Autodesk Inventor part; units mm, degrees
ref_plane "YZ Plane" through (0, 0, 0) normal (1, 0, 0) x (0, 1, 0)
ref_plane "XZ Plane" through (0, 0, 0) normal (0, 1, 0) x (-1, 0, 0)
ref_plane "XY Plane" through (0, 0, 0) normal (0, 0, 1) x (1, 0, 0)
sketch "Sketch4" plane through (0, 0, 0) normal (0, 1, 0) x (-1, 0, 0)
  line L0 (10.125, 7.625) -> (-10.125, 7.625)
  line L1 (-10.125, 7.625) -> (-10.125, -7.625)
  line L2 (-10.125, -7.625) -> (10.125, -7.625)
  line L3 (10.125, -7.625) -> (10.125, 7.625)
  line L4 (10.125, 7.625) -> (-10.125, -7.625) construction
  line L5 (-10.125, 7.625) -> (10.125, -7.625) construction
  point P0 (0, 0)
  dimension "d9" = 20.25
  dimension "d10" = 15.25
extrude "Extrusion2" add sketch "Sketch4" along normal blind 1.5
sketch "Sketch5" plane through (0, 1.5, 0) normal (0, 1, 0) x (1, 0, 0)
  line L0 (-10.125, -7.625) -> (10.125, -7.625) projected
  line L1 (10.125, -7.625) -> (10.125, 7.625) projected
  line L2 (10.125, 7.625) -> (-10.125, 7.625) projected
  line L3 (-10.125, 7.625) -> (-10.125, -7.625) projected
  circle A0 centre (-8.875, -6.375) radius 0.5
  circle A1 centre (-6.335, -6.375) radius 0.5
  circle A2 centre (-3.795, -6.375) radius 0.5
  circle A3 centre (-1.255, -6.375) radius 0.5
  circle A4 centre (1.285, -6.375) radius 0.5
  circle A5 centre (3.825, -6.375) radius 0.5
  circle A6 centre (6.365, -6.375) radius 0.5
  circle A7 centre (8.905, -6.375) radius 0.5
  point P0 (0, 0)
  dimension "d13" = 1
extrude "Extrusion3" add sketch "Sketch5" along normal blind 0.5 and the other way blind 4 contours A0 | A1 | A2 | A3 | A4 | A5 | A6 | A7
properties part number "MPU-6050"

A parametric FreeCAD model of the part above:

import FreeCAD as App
import Part
import Sketcher
Q = App.Units.Quantity


def add_polygon(sketch, points):
    """Adds a closed chain of lines whose ends are joined by coincident constraints."""
    first, n = sketch.GeometryCount, len(points)
    for a, b in zip(points, points[1:] + points[:1]):
        sketch.addGeometry(Part.LineSegment(App.Vector(*a, 0), App.Vector(*b, 0)), False)
    for i in range(n):
        sketch.addConstraint(Sketcher.Constraint("Coincident", first + i, 2, first + (i + 1) % n, 1))

doc = App.newDocument("Part")
body = doc.addObject("PartDesign::Body", "Body")

sketch1 = doc.addObject("Sketcher::SketchObject", "Sketch")
body.addObject(sketch1)
sketch1.AttachmentSupport = (doc.XZ_Plane, [""])
sketch1.MapMode = "FlatFace"
add_polygon(sketch1, [(-10.125, -7.625), (-10.125, 7.625), (10.125, 7.625), (10.125, -7.625)])
sketch1.addConstraint(Sketcher.Constraint("Vertical", 0))
sketch1.addConstraint(Sketcher.Constraint("Horizontal", 1))
sketch1.addConstraint(Sketcher.Constraint("Vertical", 2))
sketch1.addConstraint(Sketcher.Constraint("Horizontal", 3))
sketch1.addConstraint(Sketcher.Constraint("Symmetric", 0, 2, 2, 2, -1, 1))
sketch1.addConstraint(Sketcher.Constraint("DistanceX", 1, 1, 1, 2, Q("20.25 mm")))
sketch1.addConstraint(Sketcher.Constraint("DistanceY", 0, 1, 0, 2, Q("15.25 mm")))
pad1 = doc.addObject("PartDesign::Pad", "Pad")
body.addObject(pad1)
pad1.Profile = sketch1
pad1.Length = 1.5
pad1.Reversed = True

sketch2 = doc.addObject("Sketcher::SketchObject", "Sketch001")
body.addObject(sketch2)
sketch2.AttachmentSupport = (doc.XZ_Plane, [""])
sketch2.MapMode = "FlatFace"
sketch2.AttachmentOffset = App.Placement(App.Vector(0, 0, -1.5), App.Rotation())
sketch2.addGeometry(Part.Circle(App.Vector(-8.875, 6.375, 0), App.Vector(0, 0, 1), 0.5), False)
sketch2.addGeometry(Part.Circle(App.Vector(-6.335, 6.375, 0), App.Vector(0, 0, 1), 0.5), False)
sketch2.addGeometry(Part.Circle(App.Vector(-3.795, 6.375, 0), App.Vector(0, 0, 1), 0.5), False)
sketch2.addGeometry(Part.Circle(App.Vector(-1.255, 6.375, 0), App.Vector(0, 0, 1), 0.5), False)
sketch2.addGeometry(Part.Circle(App.Vector(1.285, 6.375, 0), App.Vector(0, 0, 1), 0.5), False)
sketch2.addGeometry(Part.Circle(App.Vector(3.825, 6.375, 0), App.Vector(0, 0, 1), 0.5), False)
sketch2.addGeometry(Part.Circle(App.Vector(6.365, 6.375, 0), App.Vector(0, 0, 1), 0.5), False)
sketch2.addGeometry(Part.Circle(App.Vector(8.905, 6.375, 0), App.Vector(0, 0, 1), 0.5), False)
sketch2.addConstraint(Sketcher.Constraint("Equal", 0, 1))
sketch2.addConstraint(Sketcher.Constraint("Equal", 1, 2))
sketch2.addConstraint(Sketcher.Constraint("Equal", 2, 3))
sketch2.addConstraint(Sketcher.Constraint("Equal", 3, 4))
sketch2.addConstraint(Sketcher.Constraint("Equal", 4, 5))
sketch2.addConstraint(Sketcher.Constraint("Equal", 5, 6))
sketch2.addConstraint(Sketcher.Constraint("Equal", 6, 7))
sketch2.addConstraint(Sketcher.Constraint("Horizontal", 0, 3, 1, 3))
sketch2.addConstraint(Sketcher.Constraint("Horizontal", 1, 3, 2, 3))
sketch2.addConstraint(Sketcher.Constraint("Horizontal", 2, 3, 3, 3))
sketch2.addConstraint(Sketcher.Constraint("Horizontal", 3, 3, 4, 3))
sketch2.addConstraint(Sketcher.Constraint("Horizontal", 4, 3, 5, 3))
sketch2.addConstraint(Sketcher.Constraint("Horizontal", 5, 3, 6, 3))
sketch2.addConstraint(Sketcher.Constraint("Horizontal", 6, 3, 7, 3))
sketch2.addConstraint(Sketcher.Constraint("Diameter", 0, Q("1 mm")))
sketch2.addConstraint(Sketcher.Constraint("DistanceX", 0, 3, 5, 3, Q("12.7 mm")))
sketch2.addConstraint(Sketcher.Constraint("DistanceX", 1, 3, 6, 3, Q("12.7 mm")))
sketch2.addConstraint(Sketcher.Constraint("DistanceX", 2, 3, 7, 3, Q("12.7 mm")))
sketch2.addConstraint(Sketcher.Constraint("DistanceX", 0, 3, 1, 3, Q("2.54 mm")))
sketch2.addConstraint(Sketcher.Constraint("DistanceX", 1, 3, 2, 3, Q("2.54 mm")))
sketch2.addConstraint(Sketcher.Constraint("DistanceX", 2, 3, 3, 3, Q("2.54 mm")))
sketch2.addConstraint(Sketcher.Constraint("DistanceX", 3, 3, 4, 3, Q("2.54 mm")))
sketch2.addConstraint(Sketcher.Constraint("DistanceX", 0, 3, -1, 1, Q("8.875 mm")))
sketch2.addConstraint(Sketcher.Constraint("DistanceY", -1, 1, 0, 3, Q("6.375 mm")))
pad2 = doc.addObject("PartDesign::Pad", "Pad001")
body.addObject(pad2)
pad2.Profile = sketch2
pad2.Type = "TwoLengths"
pad2.Length = 0.5
pad2.Length2 = 4
pad2.Reversed = True

doc.recompute()
